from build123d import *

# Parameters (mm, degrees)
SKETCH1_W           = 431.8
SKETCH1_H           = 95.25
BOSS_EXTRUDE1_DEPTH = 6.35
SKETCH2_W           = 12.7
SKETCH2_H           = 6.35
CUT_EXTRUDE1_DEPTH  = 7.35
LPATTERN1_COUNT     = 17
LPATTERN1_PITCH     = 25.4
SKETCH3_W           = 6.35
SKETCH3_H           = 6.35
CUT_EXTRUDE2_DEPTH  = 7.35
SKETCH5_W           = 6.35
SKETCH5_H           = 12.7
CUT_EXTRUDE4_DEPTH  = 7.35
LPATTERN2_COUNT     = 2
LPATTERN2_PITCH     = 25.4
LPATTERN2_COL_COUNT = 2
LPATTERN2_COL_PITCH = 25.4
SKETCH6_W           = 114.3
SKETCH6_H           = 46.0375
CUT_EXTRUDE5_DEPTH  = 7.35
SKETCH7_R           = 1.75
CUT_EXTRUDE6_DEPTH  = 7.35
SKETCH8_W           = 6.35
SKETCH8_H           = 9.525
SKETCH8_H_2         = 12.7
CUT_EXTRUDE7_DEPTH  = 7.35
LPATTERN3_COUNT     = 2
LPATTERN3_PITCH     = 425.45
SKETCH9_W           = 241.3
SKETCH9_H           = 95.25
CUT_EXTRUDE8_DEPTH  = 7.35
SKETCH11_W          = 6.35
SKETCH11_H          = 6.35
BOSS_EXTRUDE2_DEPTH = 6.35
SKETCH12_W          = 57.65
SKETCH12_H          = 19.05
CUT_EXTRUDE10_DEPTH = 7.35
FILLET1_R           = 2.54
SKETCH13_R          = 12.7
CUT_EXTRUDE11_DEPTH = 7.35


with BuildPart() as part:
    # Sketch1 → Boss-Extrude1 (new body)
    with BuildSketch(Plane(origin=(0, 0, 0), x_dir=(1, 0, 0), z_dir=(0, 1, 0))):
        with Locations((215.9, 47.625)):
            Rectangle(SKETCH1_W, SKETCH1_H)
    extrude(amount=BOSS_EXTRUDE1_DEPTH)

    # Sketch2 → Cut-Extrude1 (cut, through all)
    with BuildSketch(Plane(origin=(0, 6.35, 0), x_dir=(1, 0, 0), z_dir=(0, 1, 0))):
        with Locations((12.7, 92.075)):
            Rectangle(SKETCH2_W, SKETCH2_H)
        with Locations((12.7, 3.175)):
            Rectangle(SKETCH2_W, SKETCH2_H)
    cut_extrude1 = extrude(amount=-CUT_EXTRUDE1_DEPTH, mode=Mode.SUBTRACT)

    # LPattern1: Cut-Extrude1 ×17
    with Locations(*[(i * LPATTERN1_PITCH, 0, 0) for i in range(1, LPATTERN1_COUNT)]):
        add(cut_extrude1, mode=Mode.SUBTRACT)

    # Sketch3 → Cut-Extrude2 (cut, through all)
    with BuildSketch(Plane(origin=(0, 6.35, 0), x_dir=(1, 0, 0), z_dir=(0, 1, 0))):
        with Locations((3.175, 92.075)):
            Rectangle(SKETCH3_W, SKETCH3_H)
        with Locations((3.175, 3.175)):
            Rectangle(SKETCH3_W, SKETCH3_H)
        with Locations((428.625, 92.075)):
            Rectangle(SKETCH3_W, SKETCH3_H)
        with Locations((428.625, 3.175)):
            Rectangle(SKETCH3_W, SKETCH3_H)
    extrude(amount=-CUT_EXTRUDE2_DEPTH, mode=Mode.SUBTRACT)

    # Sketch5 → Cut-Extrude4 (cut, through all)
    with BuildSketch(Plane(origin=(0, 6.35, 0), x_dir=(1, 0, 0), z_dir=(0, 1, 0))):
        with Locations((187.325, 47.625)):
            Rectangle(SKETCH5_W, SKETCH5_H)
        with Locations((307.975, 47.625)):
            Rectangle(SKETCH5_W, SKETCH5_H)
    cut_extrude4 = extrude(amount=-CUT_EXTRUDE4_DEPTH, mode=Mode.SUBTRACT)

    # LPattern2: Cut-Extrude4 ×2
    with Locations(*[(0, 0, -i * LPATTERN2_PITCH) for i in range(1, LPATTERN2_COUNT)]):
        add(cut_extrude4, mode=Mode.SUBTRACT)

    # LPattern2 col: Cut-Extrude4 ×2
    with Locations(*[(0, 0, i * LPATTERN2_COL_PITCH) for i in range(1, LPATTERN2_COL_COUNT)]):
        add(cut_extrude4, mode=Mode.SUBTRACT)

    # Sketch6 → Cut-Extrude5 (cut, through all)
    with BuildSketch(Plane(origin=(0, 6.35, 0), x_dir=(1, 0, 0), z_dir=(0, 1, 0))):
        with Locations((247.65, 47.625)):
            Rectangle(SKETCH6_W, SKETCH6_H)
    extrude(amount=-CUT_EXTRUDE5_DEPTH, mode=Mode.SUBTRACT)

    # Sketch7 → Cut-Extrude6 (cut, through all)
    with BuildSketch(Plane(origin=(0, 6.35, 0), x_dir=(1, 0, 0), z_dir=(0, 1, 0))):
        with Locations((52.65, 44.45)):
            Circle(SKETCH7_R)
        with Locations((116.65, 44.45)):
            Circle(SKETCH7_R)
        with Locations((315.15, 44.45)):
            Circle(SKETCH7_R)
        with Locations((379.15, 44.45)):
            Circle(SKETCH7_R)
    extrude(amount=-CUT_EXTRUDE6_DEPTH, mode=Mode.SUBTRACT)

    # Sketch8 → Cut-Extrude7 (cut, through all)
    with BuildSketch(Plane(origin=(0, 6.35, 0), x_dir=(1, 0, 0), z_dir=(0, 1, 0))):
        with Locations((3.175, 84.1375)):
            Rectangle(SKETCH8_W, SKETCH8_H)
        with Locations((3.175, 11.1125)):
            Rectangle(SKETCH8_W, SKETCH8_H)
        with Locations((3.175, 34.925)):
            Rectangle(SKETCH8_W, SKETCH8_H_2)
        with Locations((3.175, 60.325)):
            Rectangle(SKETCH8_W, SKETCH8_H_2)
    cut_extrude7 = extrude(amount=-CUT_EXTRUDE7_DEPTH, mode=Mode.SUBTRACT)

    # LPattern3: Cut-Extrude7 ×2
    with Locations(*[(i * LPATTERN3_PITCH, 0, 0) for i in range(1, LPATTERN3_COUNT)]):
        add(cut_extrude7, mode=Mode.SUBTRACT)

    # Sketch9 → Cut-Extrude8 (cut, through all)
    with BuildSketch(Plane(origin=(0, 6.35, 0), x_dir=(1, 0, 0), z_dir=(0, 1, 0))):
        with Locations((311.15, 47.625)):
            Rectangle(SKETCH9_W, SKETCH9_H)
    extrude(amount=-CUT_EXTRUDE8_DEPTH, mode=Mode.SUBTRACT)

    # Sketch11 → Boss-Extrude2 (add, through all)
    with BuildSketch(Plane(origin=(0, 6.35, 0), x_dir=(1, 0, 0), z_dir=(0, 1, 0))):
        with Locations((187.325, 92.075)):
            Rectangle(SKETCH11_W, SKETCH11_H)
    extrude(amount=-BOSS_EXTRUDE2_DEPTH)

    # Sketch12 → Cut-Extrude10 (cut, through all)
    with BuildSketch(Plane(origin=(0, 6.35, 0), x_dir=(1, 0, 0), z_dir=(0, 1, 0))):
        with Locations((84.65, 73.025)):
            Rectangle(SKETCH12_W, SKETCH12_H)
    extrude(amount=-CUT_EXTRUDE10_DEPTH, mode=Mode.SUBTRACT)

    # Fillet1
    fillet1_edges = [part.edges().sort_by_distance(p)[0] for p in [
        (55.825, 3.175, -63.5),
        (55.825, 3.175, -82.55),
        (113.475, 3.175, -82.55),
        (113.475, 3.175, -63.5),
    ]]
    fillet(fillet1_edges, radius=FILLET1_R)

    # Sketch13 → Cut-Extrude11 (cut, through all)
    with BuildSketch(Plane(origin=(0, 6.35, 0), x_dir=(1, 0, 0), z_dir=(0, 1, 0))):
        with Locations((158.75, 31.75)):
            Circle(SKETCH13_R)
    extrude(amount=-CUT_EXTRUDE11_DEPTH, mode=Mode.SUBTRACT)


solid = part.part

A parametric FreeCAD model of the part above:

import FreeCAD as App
import Part
import Sketcher

V = App.Vector
Q = App.Units.Quantity


def edges_at(feature, points):
    """Names of the edges that pass closest to the given points."""
    edges = feature.Shape.Edges
    near = lambda p: min(range(len(edges)), key=lambda i: edges[i].distToShape(Part.Vertex(*p))[0])
    return sorted({f"Edge{near(p) + 1}" for p in points})


def add_polygon(sketch, points):
    """Adds a closed chain of lines whose ends are joined by coincident constraints."""
    first, n = sketch.GeometryCount, len(points)
    for a, b in zip(points, points[1:] + points[:1]):
        sketch.addGeometry(Part.LineSegment(App.Vector(*a, 0), App.Vector(*b, 0)), False)
    for i in range(n):
        sketch.addConstraint(Sketcher.Constraint("Coincident", first + i, 2, first + (i + 1) % n, 1))

doc = App.newDocument("Part")
body = doc.addObject("PartDesign::Body", "Body")

sketch1 = doc.addObject("Sketcher::SketchObject", "Sketch")
body.addObject(sketch1)
sketch1.AttachmentSupport = (doc.XZ_Plane, [""])
sketch1.MapMode = "FlatFace"
add_polygon(sketch1, [(0, -95.25), (0, 0), (431.8, 0), (431.8, -95.25)])
sketch1.addConstraint([
    Sketcher.Constraint("Vertical", 0),
    Sketcher.Constraint("Horizontal", 1),
    Sketcher.Constraint("Vertical", 2),
    Sketcher.Constraint("Horizontal", 3),
    Sketcher.Constraint("Coincident", 0, 2, -1, 1),
    Sketcher.Constraint("DistanceX", 1, 1, 1, 2, Q("17 in")),
    Sketcher.Constraint("DistanceY", 0, 1, 0, 2, Q("3.75 in")),
])
pad1 = doc.addObject("PartDesign::Pad", "Pad")
body.addObject(pad1)
pad1.Profile = sketch1
pad1.Length = Q("0.25 in")
pad1.Reversed = True

sketch2 = doc.addObject("Sketcher::SketchObject", "Sketch001")
body.addObject(sketch2)
sketch2.AttachmentSupport = (doc.XZ_Plane, [""])
sketch2.MapMode = "FlatFace"
sketch2.AttachmentOffset = App.Placement(V(0, 0, -0.25 * 25.4), App.Rotation())
add_polygon(sketch2, [(6.35, -95.25), (6.35, -88.9), (19.05, -88.9), (19.05, -95.25)])
add_polygon(sketch2, [(6.35, -6.35), (6.35, 0), (19.05, 0), (19.05, -6.35)])
sketch2.addConstraint([
    Sketcher.Constraint("Vertical", 0),
    Sketcher.Constraint("Horizontal", 1),
    Sketcher.Constraint("Vertical", 2),
    Sketcher.Constraint("Horizontal", 3),
    Sketcher.Constraint("Vertical", 4),
    Sketcher.Constraint("Horizontal", 5),
    Sketcher.Constraint("Vertical", 6),
    Sketcher.Constraint("Horizontal", 7),
    Sketcher.Constraint("PointOnObject", 4, 2, -1),
    Sketcher.Constraint("Vertical", 3, 2, 4, 2),
    Sketcher.Constraint("Vertical", 2, 2, 5, 2),
    Sketcher.Constraint("Equal", 2, 4),
    Sketcher.Constraint("DistanceX", 1, 1, 1, 2, Q("0.5 in")),
    Sketcher.Constraint("DistanceY", 0, 1, 0, 2, Q("0.25 in")),
    Sketcher.Constraint("DistanceY", 0, 2, -1, 1, Q("3.5 in")),
    Sketcher.Constraint("DistanceX", -1, 1, 0, 2, Q("0.25 in")),
])
pocket1 = doc.addObject("PartDesign::Pocket", "Pocket")
body.addObject(pocket1)
pocket1.Profile = sketch2
pocket1.Type = "ThroughAll"
pocket1.Reversed = True
doc.recompute()

linearpattern = doc.addObject("PartDesign::LinearPattern", "LinearPattern")
body.addObject(linearpattern)
linearpattern.Originals = [pocket1]
linearpattern.Direction = (doc.X_Axis, [""])
linearpattern.Mode = "offset"
linearpattern.Offset = Q("1 in")
linearpattern.Occurrences = 17
body.Tip = linearpattern

sketch3 = doc.addObject("Sketcher::SketchObject", "Sketch002")
body.addObject(sketch3)
sketch3.AttachmentSupport = (doc.XZ_Plane, [""])
sketch3.MapMode = "FlatFace"
sketch3.AttachmentOffset = App.Placement(V(0, 0, -0.25 * 25.4), App.Rotation())
add_polygon(sketch3, [(0, -95.25), (0, -88.9), (6.35, -88.9), (6.35, -95.25)])
add_polygon(sketch3, [(0, -6.35), (0, 0), (6.35, 0), (6.35, -6.35)])
add_polygon(sketch3, [(425.45, -95.25), (425.45, -88.9), (431.8, -88.9), (431.8, -95.25)])
add_polygon(sketch3, [(425.45, -6.35), (425.45, 0), (431.8, 0), (431.8, -6.35)])
sketch3.addConstraint([
    Sketcher.Constraint("Vertical", 0),
    Sketcher.Constraint("Horizontal", 1),
    Sketcher.Constraint("Vertical", 2),
    Sketcher.Constraint("Horizontal", 3),
    Sketcher.Constraint("Vertical", 4),
    Sketcher.Constraint("Horizontal", 5),
    Sketcher.Constraint("Vertical", 6),
    Sketcher.Constraint("Horizontal", 7),
    Sketcher.Constraint("Vertical", 8),
    Sketcher.Constraint("Horizontal", 9),
    Sketcher.Constraint("Vertical", 10),
    Sketcher.Constraint("Horizontal", 11),
    Sketcher.Constraint("Vertical", 12),
    Sketcher.Constraint("Horizontal", 13),
    Sketcher.Constraint("Vertical", 14),
    Sketcher.Constraint("Horizontal", 15),
    Sketcher.Constraint("Coincident", 4, 2, -1, 1),
    Sketcher.Constraint("PointOnObject", 0, 2, -2),
    Sketcher.Constraint("PointOnObject", 12, 2, -1),
    Sketcher.Constraint("Horizontal", 1, 2, 8, 2),
    Sketcher.Constraint("Horizontal", 3, 2, 10, 2),
    Sketcher.Constraint("Horizontal", 7, 2, 14, 2),
    Sketcher.Constraint("Vertical", 2, 2, 5, 2),
    Sketcher.Constraint("Vertical", 11, 2, 12, 2),
    Sketcher.Constraint("Vertical", 10, 2, 13, 2),
    Sketcher.Constraint("Equal", 7, 9),
    Sketcher.Constraint("Equal", 15, 0),
    Sketcher.Constraint("Equal", 2, 4),
    Sketcher.Constraint("DistanceX", -1, 1, 9, 2, Q("17 in")),
    Sketcher.Constraint("DistanceX", 1, 1, 1, 2, Q("0.25 in")),
    Sketcher.Constraint("DistanceY", 0, 2, -1, 1, Q("3.5 in")),
])
pocket2 = doc.addObject("PartDesign::Pocket", "Pocket001")
body.addObject(pocket2)
pocket2.Profile = sketch3
pocket2.Type = "ThroughAll"
pocket2.Reversed = True

sketch4 = doc.addObject("Sketcher::SketchObject", "Sketch003")
body.addObject(sketch4)
sketch4.AttachmentSupport = (doc.XZ_Plane, [""])
sketch4.MapMode = "FlatFace"
sketch4.AttachmentOffset = App.Placement(V(0, 0, -0.25 * 25.4), App.Rotation())
add_polygon(sketch4, [(184.15, -53.975), (184.15, -41.275), (190.5, -41.275), (190.5, -53.975)])
add_polygon(sketch4, [(304.8, -53.975), (304.8, -41.275), (311.15, -41.275), (311.15, -53.975)])
sketch4.addConstraint([
    Sketcher.Constraint("Vertical", 0),
    Sketcher.Constraint("Horizontal", 1),
    Sketcher.Constraint("Vertical", 2),
    Sketcher.Constraint("Horizontal", 3),
    Sketcher.Constraint("Vertical", 4),
    Sketcher.Constraint("Horizontal", 5),
    Sketcher.Constraint("Vertical", 6),
    Sketcher.Constraint("Horizontal", 7),
    Sketcher.Constraint("Horizontal", 1, 2, 4, 2),
    Sketcher.Constraint("Horizontal", 3, 2, 6, 2),
    Sketcher.Constraint("Equal", 3, 5),
    Sketcher.Constraint("DistanceY", 0, 1, 0, 2, Q("0.5 in")),
    Sketcher.Constraint("DistanceX", -1, 1, 4, 2, Q("12 in")),
    Sketcher.Constraint("DistanceX", 0, 2, 5, 2, Q("5 in")),
    Sketcher.Constraint("DistanceX", 1, 1, 1, 2, Q("0.25 in")),
    Sketcher.Constraint("DistanceY", 0, 2, -1, 1, Q("1.625 in")),
])
pocket3 = doc.addObject("PartDesign::Pocket", "Pocket002")
body.addObject(pocket3)
pocket3.Profile = sketch4
pocket3.Type = "ThroughAll"
pocket3.Reversed = True
doc.recompute()

linearpattern2 = doc.addObject("PartDesign::LinearPattern", "LinearPattern001")
body.addObject(linearpattern2)
linearpattern2.Originals = [pocket3]
linearpattern2.Direction = (doc.Z_Axis, [""])
linearpattern2.Mode = "offset"
linearpattern2.Offset = Q("1 in")
linearpattern2.Occurrences = 2
linearpattern2.Reversed = True
body.Tip = linearpattern2
doc.recompute()

linearpattern3 = doc.addObject("PartDesign::LinearPattern", "LinearPattern002")
body.addObject(linearpattern3)
linearpattern3.Originals = [pocket3]
linearpattern3.Direction = (doc.Z_Axis, [""])
linearpattern3.Mode = "offset"
linearpattern3.Offset = Q("1 in")
linearpattern3.Occurrences = 2
body.Tip = linearpattern3

sketch5 = doc.addObject("Sketcher::SketchObject", "Sketch004")
body.addObject(sketch5)
sketch5.AttachmentSupport = (doc.XZ_Plane, [""])
sketch5.MapMode = "FlatFace"
sketch5.AttachmentOffset = App.Placement(V(0, 0, -0.25 * 25.4), App.Rotation())
add_polygon(sketch5, [(190.5, -70.64375), (190.5, -24.60625), (304.8, -24.60625), (304.8, -70.64375)])
sketch5.addConstraint([
    Sketcher.Constraint("Vertical", 0),
    Sketcher.Constraint("Horizontal", 1),
    Sketcher.Constraint("Vertical", 2),
    Sketcher.Constraint("Horizontal", 3),
    Sketcher.Constraint("DistanceX", 1, 1, 1, 2, Q("4.5 in")),
    Sketcher.Constraint("DistanceX", -1, 1, 1, 2, Q("12 in")),
    Sketcher.Constraint("DistanceY", 0, 1, 0, 2, Q("1.8125 in")),
    Sketcher.Constraint("DistanceY", 0, 2, -1, 1, Q("0.96875 in")),
])
pocket4 = doc.addObject("PartDesign::Pocket", "Pocket003")
body.addObject(pocket4)
pocket4.Profile = sketch5
pocket4.Type = "ThroughAll"
pocket4.Reversed = True

sketch6 = doc.addObject("Sketcher::SketchObject", "Sketch005")
body.addObject(sketch6)
sketch6.AttachmentSupport = (doc.XZ_Plane, [""])
sketch6.MapMode = "FlatFace"
sketch6.AttachmentOffset = App.Placement(V(0, 0, -0.25 * 25.4), App.Rotation())
sketch6.addGeometry([
    Part.Circle(V(52.65, -44.45, 0), V(0, 0, 1), 1.75),
    Part.Circle(V(116.65, -44.45, 0), V(0, 0, 1), 1.75),
    Part.Circle(V(315.15, -44.45, 0), V(0, 0, 1), 1.75),
    Part.Circle(V(379.15, -44.45, 0), V(0, 0, 1), 1.75),
], False)
sketch6.addConstraint([
    Sketcher.Constraint("Equal", 0, 1),
    Sketcher.Constraint("Equal", 1, 2),
    Sketcher.Constraint("Equal", 2, 3),
    Sketcher.Constraint("Horizontal", 0, 3, 1, 3),
    Sketcher.Constraint("Horizontal", 1, 3, 2, 3),
    Sketcher.Constraint("Horizontal", 2, 3, 3, 3),
    Sketcher.Constraint("Diameter", 0, Q("3.5 mm")),
    Sketcher.Constraint("DistanceY", 0, 3, -1, 1, Q("1.75 in")),
    Sketcher.Constraint("DistanceX", -1, 1, 0, 3, Q("52.65 mm")),
    Sketcher.Constraint("DistanceX", -1, 1, 1, 3, Q("116.65 mm")),
    Sketcher.Constraint("DistanceX", -1, 1, 2, 3, Q("315.15 mm")),
    Sketcher.Constraint("DistanceX", -1, 1, 3, 3, Q("379.15 mm")),
])
pocket5 = doc.addObject("PartDesign::Pocket", "Pocket004")
body.addObject(pocket5)
pocket5.Profile = sketch6
pocket5.Type = "ThroughAll"
pocket5.Reversed = True

sketch7 = doc.addObject("Sketcher::SketchObject", "Sketch006")
body.addObject(sketch7)
sketch7.AttachmentSupport = (doc.XZ_Plane, [""])
sketch7.MapMode = "FlatFace"
sketch7.AttachmentOffset = App.Placement(V(0, 0, -0.25 * 25.4), App.Rotation())
add_polygon(sketch7, [(0, -88.9), (0, -79.375), (6.35, -79.375), (6.35, -88.9)])
add_polygon(sketch7, [(0, -15.875), (0, -6.35), (6.35, -6.35), (6.35, -15.875)])
add_polygon(sketch7, [(0, -41.275), (0, -28.575), (6.35, -28.575), (6.35, -41.275)])
add_polygon(sketch7, [(0, -66.675), (0, -53.975), (6.35, -53.975), (6.35, -66.675)])
sketch7.addConstraint([
    Sketcher.Constraint("Vertical", 0),
    Sketcher.Constraint("Horizontal", 1),
    Sketcher.Constraint("Vertical", 2),
    Sketcher.Constraint("Horizontal", 3),
    Sketcher.Constraint("Vertical", 4),
    Sketcher.Constraint("Horizontal", 5),
    Sketcher.Constraint("Vertical", 6),
    Sketcher.Constraint("Horizontal", 7),
    Sketcher.Constraint("Vertical", 8),
    Sketcher.Constraint("Horizontal", 9),
    Sketcher.Constraint("Vertical", 10),
    Sketcher.Constraint("Horizontal", 11),
    Sketcher.Constraint("Vertical", 12),
    Sketcher.Constraint("Horizontal", 13),
    Sketcher.Constraint("Vertical", 14),
    Sketcher.Constraint("Horizontal", 15),
    Sketcher.Constraint("PointOnObject", 0, 2, -2),
    Sketcher.Constraint("PointOnObject", 4, 2, -2),
    Sketcher.Constraint("PointOnObject", 8, 2, -2),
    Sketcher.Constraint("PointOnObject", 12, 2, -2),
    Sketcher.Constraint("Vertical", 2, 2, 5, 2),
    Sketcher.Constraint("Vertical", 6, 2, 9, 2),
    Sketcher.Constraint("Vertical", 10, 2, 13, 2),
    Sketcher.Constraint("Equal", 2, 4),
    Sketcher.Constraint("Equal", 10, 12),
    Sketcher.Constraint("DistanceY", 8, 1, 8, 2, Q("0.5 in")),
    Sketcher.Constraint("DistanceY", 0, 2, 8, 2, Q("2 in")),
    Sketcher.Constraint("DistanceY", 10, 2, 6, 2, Q("1 in")),
    Sketcher.Constraint("DistanceY", 0, 2, 12, 2, Q("1 in")),
    Sketcher.Constraint("DistanceX", 1, 1, 1, 2, Q("0.25 in")),
    Sketcher.Constraint("DistanceY", 2, 2, -1, 1, Q("3.5 in")),
    Sketcher.Constraint("DistanceY", 0, 1, 0, 2, Q("0.375 in")),
])
pocket6 = doc.addObject("PartDesign::Pocket", "Pocket005")
body.addObject(pocket6)
pocket6.Profile = sketch7
pocket6.Type = "ThroughAll"
pocket6.Reversed = True
doc.recompute()

linearpattern4 = doc.addObject("PartDesign::LinearPattern", "LinearPattern003")
body.addObject(linearpattern4)
linearpattern4.Originals = [pocket6]
linearpattern4.Direction = (doc.X_Axis, [""])
linearpattern4.Mode = "offset"
linearpattern4.Offset = Q("16.75 in")
linearpattern4.Occurrences = 2
body.Tip = linearpattern4

sketch8 = doc.addObject("Sketcher::SketchObject", "Sketch007")
body.addObject(sketch8)
sketch8.AttachmentSupport = (doc.XZ_Plane, [""])
sketch8.MapMode = "FlatFace"
sketch8.AttachmentOffset = App.Placement(V(0, 0, -0.25 * 25.4), App.Rotation())
add_polygon(sketch8, [(190.5, -95.25), (190.5, 0), (431.8, 0), (431.8, -95.25)])
sketch8.addConstraint([
    Sketcher.Constraint("Vertical", 0),
    Sketcher.Constraint("Horizontal", 1),
    Sketcher.Constraint("Vertical", 2),
    Sketcher.Constraint("Horizontal", 3),
    Sketcher.Constraint("PointOnObject", 0, 2, -1),
    Sketcher.Constraint("DistanceX", 1, 1, 1, 2, Q("9.5 in")),
    Sketcher.Constraint("DistanceX", -1, 1, 1, 2, Q("17 in")),
    Sketcher.Constraint("DistanceY", 0, 1, 0, 2, Q("3.75 in")),
])
pocket7 = doc.addObject("PartDesign::Pocket", "Pocket006")
body.addObject(pocket7)
pocket7.Profile = sketch8
pocket7.Type = "ThroughAll"
pocket7.Reversed = True

sketch9 = doc.addObject("Sketcher::SketchObject", "Sketch008")
body.addObject(sketch9)
sketch9.AttachmentSupport = (doc.XZ_Plane, [""])
sketch9.MapMode = "FlatFace"
sketch9.AttachmentOffset = App.Placement(V(0, 0, -0.25 * 25.4), App.Rotation())
add_polygon(sketch9, [(184.15, -95.25), (184.15, -88.9), (190.5, -88.9), (190.5, -95.25)])
sketch9.addConstraint([
    Sketcher.Constraint("Vertical", 0),
    Sketcher.Constraint("Horizontal", 1),
    Sketcher.Constraint("Vertical", 2),
    Sketcher.Constraint("Horizontal", 3),
    Sketcher.Constraint("Equal", 3, 0),
    Sketcher.Constraint("DistanceX", 1, 1, 1, 2, Q("0.25 in")),
    Sketcher.Constraint("DistanceY", 0, 2, -1, 1, Q("3.5 in")),
    Sketcher.Constraint("DistanceX", -1, 1, 1, 2, Q("7.5 in")),
])
pad2 = doc.addObject("PartDesign::Pad", "Pad001")
body.addObject(pad2)
pad2.Profile = sketch9
pad2.Length = Q("0.25 in")

sketch10 = doc.addObject("Sketcher::SketchObject", "Sketch009")
body.addObject(sketch10)
sketch10.AttachmentSupport = (doc.XZ_Plane, [""])
sketch10.MapMode = "FlatFace"
sketch10.AttachmentOffset = App.Placement(V(0, 0, -0.25 * 25.4), App.Rotation())
add_polygon(sketch10, [(55.825, -82.55), (55.825, -63.5), (113.475, -63.5), (113.475, -82.55)])
sketch10.addConstraint([
    Sketcher.Constraint("Vertical", 0),
    Sketcher.Constraint("Horizontal", 1),
    Sketcher.Constraint("Vertical", 2),
    Sketcher.Constraint("Horizontal", 3),
    Sketcher.Constraint("DistanceY", 0, 1, 0, 2, Q("0.75 in")),
    Sketcher.Constraint("DistanceY", 0, 2, -1, 1, Q("2.5 in")),
    Sketcher.Constraint("DistanceX", 1, 1, 1, 2, Q("57.65 mm")),
    Sketcher.Constraint("DistanceX", -1, 1, 0, 2, Q("55.825 mm")),
])
pocket8 = doc.addObject("PartDesign::Pocket", "Pocket007")
body.addObject(pocket8)
pocket8.Profile = sketch10
pocket8.Type = "ThroughAll"
pocket8.Reversed = True
doc.recompute()

fillet = doc.addObject("PartDesign::Fillet", "Fillet")
body.addObject(fillet)
fillet.Base = (pocket8, edges_at(pocket8, [
    (55.825, 3.175, -63.5),
    (55.825, 3.175, -82.55),
    (113.475, 3.175, -82.55),
    (113.475, 3.175, -63.5),
]))
fillet.Radius = Q("0.1 in")

sketch11 = doc.addObject("Sketcher::SketchObject", "Sketch010")
body.addObject(sketch11)
sketch11.AttachmentSupport = (doc.XZ_Plane, [""])
sketch11.MapMode = "FlatFace"
sketch11.AttachmentOffset = App.Placement(V(0, 0, -0.25 * 25.4), App.Rotation())
sketch11.addGeometry(Part.Circle(V(158.75, -31.75, 0), V(0, 0, 1), 12.7), False)
sketch11.addConstraint([
    Sketcher.Constraint("Diameter", 0, Q("1 in")),
    Sketcher.Constraint("DistanceX", -1, 1, 0, 3, Q("6.25 in")),
    Sketcher.Constraint("DistanceY", 0, 3, -1, 1, Q("1.25 in")),
])
pocket9 = doc.addObject("PartDesign::Pocket", "Pocket008")
body.addObject(pocket9)
pocket9.Profile = sketch11
pocket9.Type = "ThroughAll"
pocket9.Reversed = True

doc.recompute()
